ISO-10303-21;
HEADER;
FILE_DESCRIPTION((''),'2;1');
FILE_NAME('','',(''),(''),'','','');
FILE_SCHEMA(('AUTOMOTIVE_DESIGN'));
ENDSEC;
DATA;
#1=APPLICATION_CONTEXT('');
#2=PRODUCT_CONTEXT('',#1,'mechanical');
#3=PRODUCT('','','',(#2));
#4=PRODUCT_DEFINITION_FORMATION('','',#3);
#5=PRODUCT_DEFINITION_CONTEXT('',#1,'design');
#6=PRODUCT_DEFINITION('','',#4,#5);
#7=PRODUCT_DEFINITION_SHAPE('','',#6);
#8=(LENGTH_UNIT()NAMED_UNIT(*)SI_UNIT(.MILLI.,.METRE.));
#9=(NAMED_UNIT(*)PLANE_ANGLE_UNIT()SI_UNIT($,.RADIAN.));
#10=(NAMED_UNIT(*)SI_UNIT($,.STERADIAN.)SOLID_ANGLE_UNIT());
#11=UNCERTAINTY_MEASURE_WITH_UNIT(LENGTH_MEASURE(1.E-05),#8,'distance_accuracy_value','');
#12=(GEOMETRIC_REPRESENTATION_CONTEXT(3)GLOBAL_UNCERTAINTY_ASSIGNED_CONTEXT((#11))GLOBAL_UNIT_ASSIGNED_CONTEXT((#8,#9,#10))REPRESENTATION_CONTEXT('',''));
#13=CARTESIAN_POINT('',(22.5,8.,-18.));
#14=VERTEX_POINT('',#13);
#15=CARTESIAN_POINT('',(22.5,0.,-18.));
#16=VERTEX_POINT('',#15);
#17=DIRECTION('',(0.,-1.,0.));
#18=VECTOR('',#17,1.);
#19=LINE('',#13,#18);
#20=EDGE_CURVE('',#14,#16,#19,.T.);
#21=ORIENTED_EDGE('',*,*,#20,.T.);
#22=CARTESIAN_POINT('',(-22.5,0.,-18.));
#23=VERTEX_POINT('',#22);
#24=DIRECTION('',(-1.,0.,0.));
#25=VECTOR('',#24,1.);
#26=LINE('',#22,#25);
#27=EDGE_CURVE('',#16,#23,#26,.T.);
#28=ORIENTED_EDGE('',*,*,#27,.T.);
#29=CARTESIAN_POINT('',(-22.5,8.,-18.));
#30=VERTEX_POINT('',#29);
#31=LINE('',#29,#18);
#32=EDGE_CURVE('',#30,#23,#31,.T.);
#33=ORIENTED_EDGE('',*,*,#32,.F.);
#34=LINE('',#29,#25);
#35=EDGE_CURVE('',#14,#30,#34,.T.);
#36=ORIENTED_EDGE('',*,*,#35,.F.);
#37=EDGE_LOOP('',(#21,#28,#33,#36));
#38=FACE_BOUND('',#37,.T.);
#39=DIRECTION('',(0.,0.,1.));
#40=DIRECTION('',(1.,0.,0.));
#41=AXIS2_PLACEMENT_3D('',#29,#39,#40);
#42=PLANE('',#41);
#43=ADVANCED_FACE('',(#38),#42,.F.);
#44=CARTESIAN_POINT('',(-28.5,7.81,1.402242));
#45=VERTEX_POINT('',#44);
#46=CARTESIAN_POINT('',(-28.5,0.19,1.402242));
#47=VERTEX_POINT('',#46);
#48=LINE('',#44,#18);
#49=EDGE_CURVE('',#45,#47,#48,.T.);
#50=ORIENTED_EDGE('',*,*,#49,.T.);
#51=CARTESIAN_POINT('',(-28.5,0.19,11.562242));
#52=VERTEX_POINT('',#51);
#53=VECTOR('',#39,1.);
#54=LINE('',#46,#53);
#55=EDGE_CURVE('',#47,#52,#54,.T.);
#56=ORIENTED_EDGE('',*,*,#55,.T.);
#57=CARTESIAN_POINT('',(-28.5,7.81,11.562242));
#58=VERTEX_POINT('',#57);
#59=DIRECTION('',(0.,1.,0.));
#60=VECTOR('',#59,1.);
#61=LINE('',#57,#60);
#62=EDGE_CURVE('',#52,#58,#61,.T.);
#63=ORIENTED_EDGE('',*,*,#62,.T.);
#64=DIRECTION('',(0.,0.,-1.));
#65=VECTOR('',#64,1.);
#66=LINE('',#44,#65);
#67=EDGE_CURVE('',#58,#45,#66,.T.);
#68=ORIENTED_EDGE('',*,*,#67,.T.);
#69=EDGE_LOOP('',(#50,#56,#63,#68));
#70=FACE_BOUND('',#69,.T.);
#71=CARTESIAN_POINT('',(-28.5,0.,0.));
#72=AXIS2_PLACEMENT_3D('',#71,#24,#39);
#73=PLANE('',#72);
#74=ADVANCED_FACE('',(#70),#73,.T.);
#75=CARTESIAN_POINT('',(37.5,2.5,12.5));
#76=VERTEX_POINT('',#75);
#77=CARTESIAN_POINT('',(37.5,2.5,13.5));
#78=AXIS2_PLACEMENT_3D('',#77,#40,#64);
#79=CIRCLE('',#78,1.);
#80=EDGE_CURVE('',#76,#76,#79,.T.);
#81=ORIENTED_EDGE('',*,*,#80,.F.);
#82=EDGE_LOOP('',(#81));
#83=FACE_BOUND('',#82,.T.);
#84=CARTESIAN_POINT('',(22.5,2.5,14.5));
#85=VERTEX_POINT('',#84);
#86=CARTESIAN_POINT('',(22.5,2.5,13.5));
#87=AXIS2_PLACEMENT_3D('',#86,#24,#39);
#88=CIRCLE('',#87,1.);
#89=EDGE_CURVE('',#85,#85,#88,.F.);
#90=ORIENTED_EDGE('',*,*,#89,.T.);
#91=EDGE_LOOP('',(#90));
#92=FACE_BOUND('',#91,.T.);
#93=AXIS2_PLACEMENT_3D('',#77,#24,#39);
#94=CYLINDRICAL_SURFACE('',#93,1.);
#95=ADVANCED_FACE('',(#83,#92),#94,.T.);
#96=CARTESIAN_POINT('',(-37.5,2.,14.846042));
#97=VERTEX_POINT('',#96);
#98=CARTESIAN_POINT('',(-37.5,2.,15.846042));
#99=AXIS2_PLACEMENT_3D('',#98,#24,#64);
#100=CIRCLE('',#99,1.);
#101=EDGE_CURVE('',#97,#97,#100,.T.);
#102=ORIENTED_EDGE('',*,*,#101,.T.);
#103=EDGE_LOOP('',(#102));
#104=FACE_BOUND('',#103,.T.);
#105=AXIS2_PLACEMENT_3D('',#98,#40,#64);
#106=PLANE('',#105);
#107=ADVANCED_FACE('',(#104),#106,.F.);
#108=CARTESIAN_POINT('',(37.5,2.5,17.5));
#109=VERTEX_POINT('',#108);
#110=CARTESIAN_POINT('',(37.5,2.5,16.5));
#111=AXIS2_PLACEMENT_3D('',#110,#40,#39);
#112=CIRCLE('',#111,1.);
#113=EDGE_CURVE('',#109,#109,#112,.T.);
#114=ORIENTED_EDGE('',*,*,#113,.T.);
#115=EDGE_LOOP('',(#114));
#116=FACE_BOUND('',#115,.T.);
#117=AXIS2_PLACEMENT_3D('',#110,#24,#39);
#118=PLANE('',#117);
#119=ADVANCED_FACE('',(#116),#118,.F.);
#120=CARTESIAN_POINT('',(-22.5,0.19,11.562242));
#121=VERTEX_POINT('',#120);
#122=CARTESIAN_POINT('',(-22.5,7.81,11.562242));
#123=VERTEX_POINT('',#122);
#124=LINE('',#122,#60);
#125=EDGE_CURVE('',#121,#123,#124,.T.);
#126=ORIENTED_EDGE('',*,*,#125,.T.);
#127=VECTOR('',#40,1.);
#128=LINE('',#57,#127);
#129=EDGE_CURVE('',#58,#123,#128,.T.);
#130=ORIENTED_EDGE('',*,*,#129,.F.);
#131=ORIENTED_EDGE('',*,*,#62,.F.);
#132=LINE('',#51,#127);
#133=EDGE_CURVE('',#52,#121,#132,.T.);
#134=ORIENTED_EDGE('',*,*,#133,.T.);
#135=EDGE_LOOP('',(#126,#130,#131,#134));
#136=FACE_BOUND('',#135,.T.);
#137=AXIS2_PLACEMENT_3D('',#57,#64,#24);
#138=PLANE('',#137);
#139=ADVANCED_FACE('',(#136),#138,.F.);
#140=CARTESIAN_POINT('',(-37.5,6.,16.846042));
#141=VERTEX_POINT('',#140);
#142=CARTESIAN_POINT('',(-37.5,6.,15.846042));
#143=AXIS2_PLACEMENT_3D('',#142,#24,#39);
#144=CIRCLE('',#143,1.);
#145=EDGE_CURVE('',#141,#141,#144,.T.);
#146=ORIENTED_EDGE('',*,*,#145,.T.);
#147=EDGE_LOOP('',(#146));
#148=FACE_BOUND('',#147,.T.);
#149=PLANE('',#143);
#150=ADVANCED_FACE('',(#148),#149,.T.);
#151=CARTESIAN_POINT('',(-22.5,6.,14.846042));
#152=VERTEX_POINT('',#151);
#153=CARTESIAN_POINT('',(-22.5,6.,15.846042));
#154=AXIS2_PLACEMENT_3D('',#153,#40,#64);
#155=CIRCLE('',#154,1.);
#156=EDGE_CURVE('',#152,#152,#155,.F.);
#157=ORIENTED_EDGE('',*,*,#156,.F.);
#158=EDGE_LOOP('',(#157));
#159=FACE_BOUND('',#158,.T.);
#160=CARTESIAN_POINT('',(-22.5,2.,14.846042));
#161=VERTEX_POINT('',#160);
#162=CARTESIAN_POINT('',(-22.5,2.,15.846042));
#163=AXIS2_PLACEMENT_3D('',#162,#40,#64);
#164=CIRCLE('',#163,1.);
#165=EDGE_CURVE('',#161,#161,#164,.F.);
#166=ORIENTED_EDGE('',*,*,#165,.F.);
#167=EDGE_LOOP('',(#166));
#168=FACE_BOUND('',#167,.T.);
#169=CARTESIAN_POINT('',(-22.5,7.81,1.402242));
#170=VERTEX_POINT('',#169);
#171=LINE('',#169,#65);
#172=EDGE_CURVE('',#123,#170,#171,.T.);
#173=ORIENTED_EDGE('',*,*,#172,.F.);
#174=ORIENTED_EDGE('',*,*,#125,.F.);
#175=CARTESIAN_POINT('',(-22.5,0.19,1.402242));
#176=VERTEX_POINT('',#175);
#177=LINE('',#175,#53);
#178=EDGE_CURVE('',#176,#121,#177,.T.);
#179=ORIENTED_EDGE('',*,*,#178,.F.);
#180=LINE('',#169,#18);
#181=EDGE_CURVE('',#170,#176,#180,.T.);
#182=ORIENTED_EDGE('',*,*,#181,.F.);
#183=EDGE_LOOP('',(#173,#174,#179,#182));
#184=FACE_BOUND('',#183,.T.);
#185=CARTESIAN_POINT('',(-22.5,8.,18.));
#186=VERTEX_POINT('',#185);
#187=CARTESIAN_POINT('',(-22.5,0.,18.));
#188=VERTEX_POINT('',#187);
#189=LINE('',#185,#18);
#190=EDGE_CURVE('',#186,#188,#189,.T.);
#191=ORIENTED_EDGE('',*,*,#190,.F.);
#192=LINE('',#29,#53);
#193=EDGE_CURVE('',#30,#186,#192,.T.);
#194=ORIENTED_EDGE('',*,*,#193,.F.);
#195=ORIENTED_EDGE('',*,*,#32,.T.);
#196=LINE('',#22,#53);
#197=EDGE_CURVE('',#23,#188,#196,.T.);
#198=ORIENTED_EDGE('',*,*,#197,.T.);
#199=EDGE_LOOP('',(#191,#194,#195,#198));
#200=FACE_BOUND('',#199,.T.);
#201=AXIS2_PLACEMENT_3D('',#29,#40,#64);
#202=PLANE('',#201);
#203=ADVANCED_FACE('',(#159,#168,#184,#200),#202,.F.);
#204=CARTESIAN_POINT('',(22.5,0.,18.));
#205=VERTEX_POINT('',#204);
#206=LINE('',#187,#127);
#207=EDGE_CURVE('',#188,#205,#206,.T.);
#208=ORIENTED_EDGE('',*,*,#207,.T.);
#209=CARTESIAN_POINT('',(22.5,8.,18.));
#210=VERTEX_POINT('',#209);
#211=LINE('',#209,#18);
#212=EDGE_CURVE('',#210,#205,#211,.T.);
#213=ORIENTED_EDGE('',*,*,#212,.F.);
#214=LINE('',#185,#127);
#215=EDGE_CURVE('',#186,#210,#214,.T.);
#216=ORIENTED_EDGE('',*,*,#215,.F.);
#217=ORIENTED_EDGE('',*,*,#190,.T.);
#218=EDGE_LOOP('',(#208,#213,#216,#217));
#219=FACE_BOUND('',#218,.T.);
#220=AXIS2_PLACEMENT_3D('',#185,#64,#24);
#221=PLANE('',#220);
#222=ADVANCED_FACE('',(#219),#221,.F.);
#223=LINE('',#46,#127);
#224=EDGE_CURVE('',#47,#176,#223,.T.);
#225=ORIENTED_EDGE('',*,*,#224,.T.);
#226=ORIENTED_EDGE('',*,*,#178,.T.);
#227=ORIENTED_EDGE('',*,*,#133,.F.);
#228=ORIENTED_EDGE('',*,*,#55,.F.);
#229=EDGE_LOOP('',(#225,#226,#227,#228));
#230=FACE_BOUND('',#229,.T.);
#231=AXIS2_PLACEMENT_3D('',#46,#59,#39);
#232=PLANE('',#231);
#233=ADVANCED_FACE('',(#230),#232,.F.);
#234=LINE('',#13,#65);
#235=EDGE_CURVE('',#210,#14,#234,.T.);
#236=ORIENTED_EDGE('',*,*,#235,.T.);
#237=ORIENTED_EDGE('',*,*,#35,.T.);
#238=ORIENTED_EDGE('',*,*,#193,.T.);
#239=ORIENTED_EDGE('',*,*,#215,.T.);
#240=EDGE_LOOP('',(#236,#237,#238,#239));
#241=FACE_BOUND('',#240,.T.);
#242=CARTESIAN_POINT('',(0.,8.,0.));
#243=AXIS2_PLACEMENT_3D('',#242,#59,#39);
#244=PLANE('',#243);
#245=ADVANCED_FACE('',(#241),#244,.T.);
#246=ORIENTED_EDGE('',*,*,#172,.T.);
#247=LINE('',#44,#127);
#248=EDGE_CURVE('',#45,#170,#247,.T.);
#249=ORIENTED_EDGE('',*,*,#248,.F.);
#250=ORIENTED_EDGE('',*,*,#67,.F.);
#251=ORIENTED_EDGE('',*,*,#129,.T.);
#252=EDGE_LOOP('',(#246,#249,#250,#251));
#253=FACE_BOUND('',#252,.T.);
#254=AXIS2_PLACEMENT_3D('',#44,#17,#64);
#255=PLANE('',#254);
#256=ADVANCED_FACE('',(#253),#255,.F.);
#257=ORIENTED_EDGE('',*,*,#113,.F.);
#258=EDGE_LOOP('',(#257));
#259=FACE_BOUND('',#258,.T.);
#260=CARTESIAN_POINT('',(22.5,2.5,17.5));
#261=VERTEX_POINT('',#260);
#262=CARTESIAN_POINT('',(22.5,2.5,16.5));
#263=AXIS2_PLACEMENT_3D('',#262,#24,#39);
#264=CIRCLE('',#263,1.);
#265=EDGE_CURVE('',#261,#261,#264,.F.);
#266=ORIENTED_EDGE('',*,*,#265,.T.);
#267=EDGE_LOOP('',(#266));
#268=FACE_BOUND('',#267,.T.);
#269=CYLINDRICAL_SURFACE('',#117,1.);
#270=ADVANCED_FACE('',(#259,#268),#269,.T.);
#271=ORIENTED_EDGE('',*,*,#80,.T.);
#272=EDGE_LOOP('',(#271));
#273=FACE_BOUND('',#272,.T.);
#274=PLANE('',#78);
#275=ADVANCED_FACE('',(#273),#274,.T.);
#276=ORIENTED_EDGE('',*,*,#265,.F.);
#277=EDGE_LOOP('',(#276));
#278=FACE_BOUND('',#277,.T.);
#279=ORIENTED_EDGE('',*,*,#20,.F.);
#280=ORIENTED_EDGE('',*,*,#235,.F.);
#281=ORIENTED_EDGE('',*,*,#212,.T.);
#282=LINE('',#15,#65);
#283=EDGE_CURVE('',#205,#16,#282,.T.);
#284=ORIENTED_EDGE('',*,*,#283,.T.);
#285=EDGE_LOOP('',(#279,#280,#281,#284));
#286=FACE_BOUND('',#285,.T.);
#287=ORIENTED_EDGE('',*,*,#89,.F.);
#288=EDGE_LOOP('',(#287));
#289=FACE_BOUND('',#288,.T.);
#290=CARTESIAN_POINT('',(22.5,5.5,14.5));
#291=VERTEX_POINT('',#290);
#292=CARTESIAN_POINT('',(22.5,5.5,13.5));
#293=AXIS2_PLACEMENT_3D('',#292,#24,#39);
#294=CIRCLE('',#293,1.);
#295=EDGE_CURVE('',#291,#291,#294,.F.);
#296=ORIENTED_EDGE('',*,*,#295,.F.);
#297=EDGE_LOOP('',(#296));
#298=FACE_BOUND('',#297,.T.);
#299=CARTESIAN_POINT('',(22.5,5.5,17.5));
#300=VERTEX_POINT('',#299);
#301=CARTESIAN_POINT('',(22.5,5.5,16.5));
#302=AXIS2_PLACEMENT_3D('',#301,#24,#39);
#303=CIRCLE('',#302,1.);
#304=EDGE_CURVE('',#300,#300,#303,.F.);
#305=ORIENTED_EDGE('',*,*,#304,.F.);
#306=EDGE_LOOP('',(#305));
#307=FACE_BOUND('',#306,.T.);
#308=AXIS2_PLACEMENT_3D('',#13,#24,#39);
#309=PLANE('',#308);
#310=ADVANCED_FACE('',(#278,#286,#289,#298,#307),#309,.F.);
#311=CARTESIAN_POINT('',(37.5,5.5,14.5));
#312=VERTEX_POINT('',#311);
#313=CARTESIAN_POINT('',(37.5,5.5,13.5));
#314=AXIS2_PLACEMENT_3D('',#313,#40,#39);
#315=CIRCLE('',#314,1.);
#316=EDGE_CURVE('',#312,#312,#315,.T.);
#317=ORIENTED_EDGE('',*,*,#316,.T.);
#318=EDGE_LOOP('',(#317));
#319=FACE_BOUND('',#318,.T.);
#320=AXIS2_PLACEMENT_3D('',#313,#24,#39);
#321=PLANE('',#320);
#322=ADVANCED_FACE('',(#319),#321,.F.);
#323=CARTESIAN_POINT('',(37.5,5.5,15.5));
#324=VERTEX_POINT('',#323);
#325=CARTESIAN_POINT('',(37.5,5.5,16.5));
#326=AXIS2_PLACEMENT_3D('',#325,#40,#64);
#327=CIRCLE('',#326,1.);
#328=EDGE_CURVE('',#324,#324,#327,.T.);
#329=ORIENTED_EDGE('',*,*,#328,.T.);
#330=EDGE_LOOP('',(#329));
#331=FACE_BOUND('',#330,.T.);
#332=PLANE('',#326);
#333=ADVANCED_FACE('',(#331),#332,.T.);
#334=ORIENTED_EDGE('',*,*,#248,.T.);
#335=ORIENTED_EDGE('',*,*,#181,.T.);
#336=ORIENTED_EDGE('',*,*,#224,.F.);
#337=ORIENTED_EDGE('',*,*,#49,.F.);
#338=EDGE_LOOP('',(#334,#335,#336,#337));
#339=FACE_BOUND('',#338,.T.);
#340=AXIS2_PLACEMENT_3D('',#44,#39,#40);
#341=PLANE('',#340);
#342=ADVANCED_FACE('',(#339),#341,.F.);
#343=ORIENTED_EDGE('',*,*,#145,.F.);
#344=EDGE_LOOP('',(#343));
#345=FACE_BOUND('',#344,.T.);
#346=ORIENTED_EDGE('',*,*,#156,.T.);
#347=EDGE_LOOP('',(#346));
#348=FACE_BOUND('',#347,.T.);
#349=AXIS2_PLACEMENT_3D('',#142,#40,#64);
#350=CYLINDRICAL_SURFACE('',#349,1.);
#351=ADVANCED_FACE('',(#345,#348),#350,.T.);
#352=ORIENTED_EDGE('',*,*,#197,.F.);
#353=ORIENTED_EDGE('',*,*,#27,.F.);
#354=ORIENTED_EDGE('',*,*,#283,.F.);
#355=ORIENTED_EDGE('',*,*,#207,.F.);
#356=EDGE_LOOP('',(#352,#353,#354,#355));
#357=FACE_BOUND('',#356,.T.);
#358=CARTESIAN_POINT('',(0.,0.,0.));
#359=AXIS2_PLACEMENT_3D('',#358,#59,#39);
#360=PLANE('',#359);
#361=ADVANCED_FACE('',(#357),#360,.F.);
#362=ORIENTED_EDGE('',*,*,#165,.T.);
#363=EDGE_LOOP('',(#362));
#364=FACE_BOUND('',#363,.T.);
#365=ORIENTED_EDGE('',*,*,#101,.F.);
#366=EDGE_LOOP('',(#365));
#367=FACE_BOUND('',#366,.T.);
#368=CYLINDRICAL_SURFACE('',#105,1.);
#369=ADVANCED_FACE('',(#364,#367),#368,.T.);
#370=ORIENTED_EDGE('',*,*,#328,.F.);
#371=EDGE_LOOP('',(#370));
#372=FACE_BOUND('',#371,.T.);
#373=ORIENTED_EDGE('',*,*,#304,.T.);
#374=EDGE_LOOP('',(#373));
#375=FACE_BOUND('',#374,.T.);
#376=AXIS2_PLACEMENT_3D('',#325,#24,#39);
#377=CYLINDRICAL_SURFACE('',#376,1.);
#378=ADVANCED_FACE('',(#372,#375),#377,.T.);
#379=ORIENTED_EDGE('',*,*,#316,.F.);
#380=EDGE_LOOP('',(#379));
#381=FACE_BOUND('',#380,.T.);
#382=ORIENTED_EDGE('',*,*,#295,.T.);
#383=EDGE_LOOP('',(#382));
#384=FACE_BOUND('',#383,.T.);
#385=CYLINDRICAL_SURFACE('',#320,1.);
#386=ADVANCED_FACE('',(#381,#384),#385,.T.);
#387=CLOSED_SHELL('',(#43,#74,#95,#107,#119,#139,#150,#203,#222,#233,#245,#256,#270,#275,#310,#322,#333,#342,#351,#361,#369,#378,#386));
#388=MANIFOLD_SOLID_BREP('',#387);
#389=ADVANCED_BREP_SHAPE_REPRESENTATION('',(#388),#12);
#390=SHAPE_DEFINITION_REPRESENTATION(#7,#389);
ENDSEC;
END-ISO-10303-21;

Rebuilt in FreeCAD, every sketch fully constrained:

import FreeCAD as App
import Part
import Sketcher
from FreeCAD import Vector
Q = App.Units.Quantity

doc = App.newDocument("Part")
body = doc.addObject("PartDesign::Body", "Body")

# Sketch on XZ plane
sketch1 = body.newObject("Sketcher::SketchObject", "Sketch")
sketch1.AttachmentSupport = (doc.getObject("XZ_Plane"), [""])
sketch1.MapMode = "FlatFace"
sketch1.addGeometry([
    Part.LineSegment(Vector(-22.5, -18, 0), Vector(-22.5, 18, 0)),
    Part.LineSegment(Vector(-22.5, 18, 0), Vector(22.5, 18, 0)),
    Part.LineSegment(Vector(22.5, 18, 0), Vector(22.5, -18, 0)),
    Part.LineSegment(Vector(22.5, -18, 0), Vector(-22.5, -18, 0)),
], False)
sketch1.addConstraint([
    Sketcher.Constraint("Coincident", 0, 2, 1, 1),
    Sketcher.Constraint("Coincident", 1, 2, 2, 1),
    Sketcher.Constraint("Coincident", 2, 2, 3, 1),
    Sketcher.Constraint("Coincident", 3, 2, 0, 1),
    Sketcher.Constraint("Vertical", 0),
    Sketcher.Constraint("Horizontal", 1),
    Sketcher.Constraint("Vertical", 2),
    Sketcher.Constraint("Horizontal", 3),
    Sketcher.Constraint("Symmetric", 0, 2, 2, 2, -1, 1),
    Sketcher.Constraint("DistanceX", 1, 1, 1, 2, Q("45 mm")),
    Sketcher.Constraint("DistanceY", 0, 1, 0, 2, Q("36 mm")),
])
pad1 = body.newObject("PartDesign::Pad", "Pad")
pad1.Profile = sketch1
pad1.Length = 8
pad1.Reversed = True

# Sketch on YZ plane
sketch2 = body.newObject("Sketcher::SketchObject", "Sketch001")
sketch2.AttachmentSupport = (doc.getObject("YZ_Plane"), [""])
sketch2.MapMode = "FlatFace"
sketch2.AttachmentOffset = App.Placement(Vector(0, 0, -22.5), App.Rotation())
sketch2.addGeometry([
    Part.LineSegment(Vector(7.81, 1.402242, 0), Vector(0.19, 1.402242, 0)),
    Part.LineSegment(Vector(0.19, 1.402242, 0), Vector(0.19, 11.562242, 0)),
    Part.LineSegment(Vector(0.19, 11.562242, 0), Vector(7.81, 11.562242, 0)),
    Part.LineSegment(Vector(7.81, 11.562242, 0), Vector(7.81, 1.402242, 0)),
], False)
sketch2.addConstraint([
    Sketcher.Constraint("Coincident", 0, 2, 1, 1),
    Sketcher.Constraint("Coincident", 1, 2, 2, 1),
    Sketcher.Constraint("Coincident", 2, 2, 3, 1),
    Sketcher.Constraint("Coincident", 3, 2, 0, 1),
    Sketcher.Constraint("Horizontal", 0),
    Sketcher.Constraint("Vertical", 1),
    Sketcher.Constraint("Horizontal", 2),
    Sketcher.Constraint("Vertical", 3),
    Sketcher.Constraint("DistanceX", 0, 2, 0, 1, Q("7.62 mm")),
    Sketcher.Constraint("DistanceY", 1, 1, 1, 2, Q("10.16 mm")),
    Sketcher.Constraint("DistanceX", -1, 1, 0, 2, Q("0.19 mm")),
    Sketcher.Constraint("DistanceY", -1, 1, 0, 2, Q("1.402242 mm")),
])
pad2 = body.newObject("PartDesign::Pad", "Pad001")
pad2.Profile = sketch2
pad2.Length = 6
pad2.Reversed = True

# Sketch on YZ plane
sketch3 = body.newObject("Sketcher::SketchObject", "Sketch002")
sketch3.AttachmentSupport = (doc.getObject("YZ_Plane"), [""])
sketch3.MapMode = "FlatFace"
sketch3.AttachmentOffset = App.Placement(Vector(0, 0, -22.5), App.Rotation())
sketch3.addGeometry([
    Part.Circle(Vector(6, 15.846042, 0), Vector(0, 0, 1), 1),
    Part.Circle(Vector(2, 15.846042, 0), Vector(0, 0, 1), 1),
], False)
sketch3.addConstraint([
    Sketcher.Constraint("Equal", 0, 1),
    Sketcher.Constraint("Horizontal", 0, 3, 1, 3),
    Sketcher.Constraint("Diameter", 0, Q("2 mm")),
    Sketcher.Constraint("DistanceX", -1, 1, 0, 3, Q("6 mm")),
    Sketcher.Constraint("DistanceX", -1, 1, 1, 3, Q("2 mm")),
    Sketcher.Constraint("DistanceY", -1, 1, 0, 3, Q("15.846042 mm")),
])
pad3 = body.newObject("PartDesign::Pad", "Pad002")
pad3.Profile = sketch3
pad3.Length = 15
pad3.Reversed = True

# Sketch on YZ plane
sketch4 = body.newObject("Sketcher::SketchObject", "Sketch003")
sketch4.AttachmentSupport = (doc.getObject("YZ_Plane"), [""])
sketch4.MapMode = "FlatFace"
sketch4.AttachmentOffset = App.Placement(Vector(0, 0, 22.5), App.Rotation())
sketch4.addGeometry([
    Part.Circle(Vector(5.5, 16.5, 0), Vector(0, 0, 1), 1),
    Part.Circle(Vector(2.5, 16.5, 0), Vector(0, 0, 1), 1),
    Part.Circle(Vector(2.5, 13.5, 0), Vector(0, 0, 1), 1),
    Part.Circle(Vector(5.5, 13.5, 0), Vector(0, 0, 1), 1),
], False)
sketch4.addConstraint([
    Sketcher.Constraint("Equal", 0, 1),
    Sketcher.Constraint("Equal", 1, 2),
    Sketcher.Constraint("Equal", 2, 3),
    Sketcher.Constraint("Horizontal", 0, 3, 1, 3),
    Sketcher.Constraint("Horizontal", 2, 3, 3, 3),
    Sketcher.Constraint("Vertical", 1, 3, 2, 3),
    Sketcher.Constraint("Vertical", 0, 3, 3, 3),
    Sketcher.Constraint("Diameter", 0, Q("2 mm")),
    Sketcher.Constraint("DistanceX", 1, 3, 0, 3, Q("3 mm")),
    Sketcher.Constraint("DistanceY", 2, 3, 1, 3, Q("3 mm")),
    Sketcher.Constraint("DistanceX", -1, 1, 0, 3, Q("5.5 mm")),
    Sketcher.Constraint("DistanceY", -1, 1, 0, 3, Q("16.5 mm")),
])
pad4 = body.newObject("PartDesign::Pad", "Pad003")
pad4.Profile = sketch4
pad4.Length = 15

doc.recompute()
